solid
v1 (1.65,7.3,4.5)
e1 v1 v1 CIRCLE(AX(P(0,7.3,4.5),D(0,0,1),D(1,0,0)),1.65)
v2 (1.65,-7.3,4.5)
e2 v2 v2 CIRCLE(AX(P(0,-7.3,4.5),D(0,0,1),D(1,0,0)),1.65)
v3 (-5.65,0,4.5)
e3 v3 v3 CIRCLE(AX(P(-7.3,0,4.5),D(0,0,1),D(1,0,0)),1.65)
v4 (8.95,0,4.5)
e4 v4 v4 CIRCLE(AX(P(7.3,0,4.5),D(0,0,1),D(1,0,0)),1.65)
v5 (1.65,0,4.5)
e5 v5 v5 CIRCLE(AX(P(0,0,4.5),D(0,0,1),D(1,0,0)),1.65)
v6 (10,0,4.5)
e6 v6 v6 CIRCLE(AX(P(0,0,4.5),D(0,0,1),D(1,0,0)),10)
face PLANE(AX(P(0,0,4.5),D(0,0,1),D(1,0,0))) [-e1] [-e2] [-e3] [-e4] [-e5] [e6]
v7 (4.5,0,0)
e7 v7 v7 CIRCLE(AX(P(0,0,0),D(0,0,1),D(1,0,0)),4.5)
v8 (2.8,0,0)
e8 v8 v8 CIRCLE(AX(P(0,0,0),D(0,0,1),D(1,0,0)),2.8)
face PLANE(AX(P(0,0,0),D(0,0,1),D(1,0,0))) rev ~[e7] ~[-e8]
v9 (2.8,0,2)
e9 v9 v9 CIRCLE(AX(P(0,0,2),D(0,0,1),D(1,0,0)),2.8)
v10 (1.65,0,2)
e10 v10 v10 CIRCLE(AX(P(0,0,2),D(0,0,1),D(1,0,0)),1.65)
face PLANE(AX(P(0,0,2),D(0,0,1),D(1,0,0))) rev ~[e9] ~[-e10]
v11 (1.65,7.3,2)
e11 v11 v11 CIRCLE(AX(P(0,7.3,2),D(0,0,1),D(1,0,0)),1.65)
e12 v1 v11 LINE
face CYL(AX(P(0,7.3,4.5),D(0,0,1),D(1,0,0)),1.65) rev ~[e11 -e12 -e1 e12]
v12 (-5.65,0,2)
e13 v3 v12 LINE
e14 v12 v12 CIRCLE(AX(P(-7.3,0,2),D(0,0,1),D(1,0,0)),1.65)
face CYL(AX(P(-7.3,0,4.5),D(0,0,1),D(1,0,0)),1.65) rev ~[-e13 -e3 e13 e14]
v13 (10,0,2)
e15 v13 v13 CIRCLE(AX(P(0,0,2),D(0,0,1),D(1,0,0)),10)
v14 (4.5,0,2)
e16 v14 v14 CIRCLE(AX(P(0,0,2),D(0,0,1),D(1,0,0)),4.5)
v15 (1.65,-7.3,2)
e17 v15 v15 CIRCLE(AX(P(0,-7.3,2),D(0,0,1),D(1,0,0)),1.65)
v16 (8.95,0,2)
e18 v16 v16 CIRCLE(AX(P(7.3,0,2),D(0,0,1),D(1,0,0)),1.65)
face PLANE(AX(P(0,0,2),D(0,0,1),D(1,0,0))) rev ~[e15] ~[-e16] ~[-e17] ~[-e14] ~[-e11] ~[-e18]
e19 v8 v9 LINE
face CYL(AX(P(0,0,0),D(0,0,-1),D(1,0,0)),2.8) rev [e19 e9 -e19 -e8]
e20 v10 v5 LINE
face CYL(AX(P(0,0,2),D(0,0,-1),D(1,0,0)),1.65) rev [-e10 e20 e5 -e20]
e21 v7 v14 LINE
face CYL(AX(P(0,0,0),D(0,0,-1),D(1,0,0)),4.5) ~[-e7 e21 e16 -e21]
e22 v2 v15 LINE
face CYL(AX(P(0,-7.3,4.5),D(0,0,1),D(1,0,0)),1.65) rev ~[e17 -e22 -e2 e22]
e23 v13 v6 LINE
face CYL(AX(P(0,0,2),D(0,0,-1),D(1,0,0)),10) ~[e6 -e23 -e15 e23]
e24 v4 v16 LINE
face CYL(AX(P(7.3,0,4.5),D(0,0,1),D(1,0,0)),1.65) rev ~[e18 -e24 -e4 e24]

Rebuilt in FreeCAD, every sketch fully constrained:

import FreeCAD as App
import Part
import Sketcher

V = App.Vector

doc = App.newDocument("Part")
body = doc.addObject("PartDesign::Body", "Body")

sketch1 = doc.addObject("Sketcher::SketchObject", "Sketch")
body.addObject(sketch1)
sketch1.AttachmentSupport = (doc.XY_Plane, [""])
sketch1.MapMode = "FlatFace"
sketch1.addGeometry([
    Part.Circle(V(0, 0, 0), V(0, 0, 1), 4.5),
    Part.Circle(V(0, 0, 0), V(0, 0, 1), 2.8),
], False)
sketch1.addConstraint([
    Sketcher.Constraint("Coincident", 0, 3, -1, 1),
    Sketcher.Constraint("Coincident", 1, 3, -1, 1),
    Sketcher.Constraint("Diameter", 0, 9.0),
    Sketcher.Constraint("Diameter", 1, 5.6),
])
pad1 = doc.addObject("PartDesign::Pad", "Pad")
body.addObject(pad1)
pad1.Profile = sketch1
pad1.Length = 2

sketch2 = doc.addObject("Sketcher::SketchObject", "Sketch001")
body.addObject(sketch2)
sketch2.AttachmentSupport = (doc.XY_Plane, [""])
sketch2.MapMode = "FlatFace"
sketch2.AttachmentOffset = App.Placement(V(0, 0, 2), App.Rotation())
sketch2.addGeometry([
    Part.Circle(V(0, 0, 0), V(0, 0, 1), 10),
    Part.Circle(V(0, 0, 0), V(0, 0, 1), 1.6),
], False)
sketch2.addConstraint([
    Sketcher.Constraint("Coincident", 0, 3, -1, 1),
    Sketcher.Constraint("Coincident", 1, 3, -1, 1),
    Sketcher.Constraint("Diameter", 0, 20.0),
    Sketcher.Constraint("Diameter", 1, 3.3),
])
pad2 = doc.addObject("PartDesign::Pad", "Pad001")
body.addObject(pad2)
pad2.Profile = sketch2
pad2.Length = 2.5

sketch3 = doc.addObject("Sketcher::SketchObject", "Sketch002")
body.addObject(sketch3)
sketch3.AttachmentSupport = (doc.XY_Plane, [""])
sketch3.MapMode = "FlatFace"
sketch3.AttachmentOffset = App.Placement(V(0, 0, 4.5), App.Rotation())
sketch3.addGeometry([
    Part.Circle(V(-7.3, 0, 0), V(0, 0, 1), 1.6),
    Part.Circle(V(0, -7.3, 0), V(0, 0, 1), 1.6),
    Part.Circle(V(0, 7.3, 0), V(0, 0, 1), 1.6),
    Part.Circle(V(7.3, 0, 0), V(0, 0, 1), 1.6),
], False)
sketch3.addConstraint([
    Sketcher.Constraint("Equal", 0, 1),
    Sketcher.Constraint("Equal", 1, 2),
    Sketcher.Constraint("Equal", 2, 3),
    Sketcher.Constraint("Symmetric", 1, 3, 2, 3, -1, 1),
    Sketcher.Constraint("Symmetric", 0, 3, 3, 3, -1, 1),
    Sketcher.Constraint("PointOnObject", 0, 3, -1),
    Sketcher.Constraint("PointOnObject", 1, 3, -2),
    Sketcher.Constraint("Diameter", 0, 3.3),
    Sketcher.Constraint("DistanceX", 0, 3, -1, 1, 7.3),
    Sketcher.Constraint("DistanceY", 1, 3, -1, 1, 7.3),
])
pocket1 = doc.addObject("PartDesign::Pocket", "Pocket")
body.addObject(pocket1)
pocket1.Profile = sketch3
pocket1.Type = "ThroughAll"

doc.recompute()
